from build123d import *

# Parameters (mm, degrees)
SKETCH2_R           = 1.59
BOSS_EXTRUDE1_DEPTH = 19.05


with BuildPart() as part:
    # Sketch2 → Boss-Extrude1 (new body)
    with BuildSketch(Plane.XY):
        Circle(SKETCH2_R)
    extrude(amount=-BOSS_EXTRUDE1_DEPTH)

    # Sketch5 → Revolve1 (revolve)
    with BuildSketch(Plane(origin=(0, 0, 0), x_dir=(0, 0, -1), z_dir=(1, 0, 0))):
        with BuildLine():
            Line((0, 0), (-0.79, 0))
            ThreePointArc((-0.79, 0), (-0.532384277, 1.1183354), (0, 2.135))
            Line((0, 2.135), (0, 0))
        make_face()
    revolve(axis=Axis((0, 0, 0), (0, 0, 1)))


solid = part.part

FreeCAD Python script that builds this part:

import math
import FreeCAD as App
import Part
import Sketcher

V = App.Vector
Q = App.Units.Quantity

doc = App.newDocument("Part")
body = doc.addObject("PartDesign::Body", "Body")

sketch1 = body.newObject("Sketcher::SketchObject", "Sketch")
sketch1.AttachmentSupport = (doc.getObject("XY_Plane"), [""])
sketch1.MapMode = "FlatFace"
sketch1.addGeometry(Part.Circle(V(0, 0, 0), V(0, 0, 1), 1.6), False)
sketch1.addConstraint(Sketcher.Constraint("Coincident", 0, 3, -1, 1))
sketch1.addConstraint(Sketcher.Constraint("Diameter", 0, Q("3.18 mm")))
pad1 = body.newObject("PartDesign::Pad", "Pad")
pad1.Profile = sketch1
pad1.Length = Q("0.75 in")
pad1.Reversed = True

sketch2 = body.newObject("Sketcher::SketchObject", "Sketch001")
sketch2.AttachmentSupport = (doc.getObject("YZ_Plane"), [""])
sketch2.MapMode = "FlatFace"
sketch2.addGeometry(Part.LineSegment(V(0, 0.8, 0), V(0, 0, 0)), False)
sketch2.addGeometry(Part.LineSegment(V(0, 0, 0), V(2.1, 0, 0)), False)
sketch2.addGeometry(Part.ArcOfCircle(Part.Circle(V(-0.4, -3.7, 0), V(0, 0, 1), 4.5), math.radians(55), math.radians(84)), False)
sketch2.addConstraint(Sketcher.Constraint("Coincident", 0, 2, 1, 1))
sketch2.addConstraint(Sketcher.Constraint("Coincident", 1, 2, 2, 1))
sketch2.addConstraint(Sketcher.Constraint("Coincident", 2, 2, 0, 1))
sketch2.addConstraint(Sketcher.Constraint("Vertical", 0))
sketch2.addConstraint(Sketcher.Constraint("Horizontal", 1))
sketch2.addConstraint(Sketcher.Constraint("Coincident", 0, 2, -1, 1))
sketch2.addConstraint(Sketcher.Constraint("Radius", 2, Q("4.495391 mm")))
sketch2.addConstraint(Sketcher.Constraint("DistanceX", 1, 1, 1, 2, Q("2.135 mm")))
sketch2.addConstraint(Sketcher.Constraint("DistanceY", 0, 2, 0, 1, Q("0.79 mm")))
revolution = body.newObject("PartDesign::Revolution", "Revolution")
revolution.Profile = sketch2
revolution.ReferenceAxis = (sketch2, ["V_Axis"])
revolution.Angle = 360

doc.recompute()
